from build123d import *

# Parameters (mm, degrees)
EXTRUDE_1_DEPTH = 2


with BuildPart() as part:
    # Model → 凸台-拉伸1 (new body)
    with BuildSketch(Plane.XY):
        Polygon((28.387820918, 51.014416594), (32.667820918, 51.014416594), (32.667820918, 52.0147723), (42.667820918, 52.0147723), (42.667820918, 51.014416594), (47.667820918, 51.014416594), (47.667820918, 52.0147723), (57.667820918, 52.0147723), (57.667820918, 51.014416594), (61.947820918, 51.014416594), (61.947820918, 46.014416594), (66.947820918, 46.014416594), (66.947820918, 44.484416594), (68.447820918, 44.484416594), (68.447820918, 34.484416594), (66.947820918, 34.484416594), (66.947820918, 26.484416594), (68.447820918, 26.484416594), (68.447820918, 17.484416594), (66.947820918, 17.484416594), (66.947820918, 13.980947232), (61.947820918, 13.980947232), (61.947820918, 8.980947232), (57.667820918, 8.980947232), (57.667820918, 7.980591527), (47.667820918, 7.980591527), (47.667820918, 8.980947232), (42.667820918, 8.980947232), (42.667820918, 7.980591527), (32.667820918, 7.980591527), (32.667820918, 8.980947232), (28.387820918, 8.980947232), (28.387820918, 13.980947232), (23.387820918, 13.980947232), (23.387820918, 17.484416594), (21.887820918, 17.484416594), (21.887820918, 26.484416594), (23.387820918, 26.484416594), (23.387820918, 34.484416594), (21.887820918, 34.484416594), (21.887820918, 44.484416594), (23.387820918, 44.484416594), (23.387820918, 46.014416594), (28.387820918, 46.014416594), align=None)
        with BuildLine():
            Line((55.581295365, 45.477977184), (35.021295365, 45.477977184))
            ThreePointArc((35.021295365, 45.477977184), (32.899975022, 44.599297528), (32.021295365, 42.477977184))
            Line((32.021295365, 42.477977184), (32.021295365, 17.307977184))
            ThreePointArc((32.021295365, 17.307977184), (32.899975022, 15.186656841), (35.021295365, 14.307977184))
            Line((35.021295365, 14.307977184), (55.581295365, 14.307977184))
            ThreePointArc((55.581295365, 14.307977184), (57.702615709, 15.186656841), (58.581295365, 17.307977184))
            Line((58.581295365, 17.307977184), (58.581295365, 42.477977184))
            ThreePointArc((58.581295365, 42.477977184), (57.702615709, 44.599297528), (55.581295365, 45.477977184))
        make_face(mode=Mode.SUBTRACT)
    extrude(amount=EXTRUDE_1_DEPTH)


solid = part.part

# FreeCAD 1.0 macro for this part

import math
import FreeCAD as App
import Part
import Sketcher
from FreeCAD import Vector

doc = App.newDocument("Part")
body = doc.addObject("PartDesign::Body", "Body")

# Sketch on XY plane
sketch1 = body.newObject("Sketcher::SketchObject", "Sketch")
sketch1.AttachmentSupport = (doc.getObject("XY_Plane"), [""])
sketch1.MapMode = "FlatFace"
sketch1.addGeometry(Part.LineSegment(Vector(32.7, 51, 0), Vector(28.4, 51, 0)), False)
sketch1.addGeometry(Part.LineSegment(Vector(28.4, 51, 0), Vector(28.4, 46, 0)), False)
sketch1.addGeometry(Part.LineSegment(Vector(28.4, 46, 0), Vector(23.4, 46, 0)), False)
sketch1.addGeometry(Part.LineSegment(Vector(23.4, 46, 0), Vector(23.4, 44.5, 0)), False)
sketch1.addGeometry(Part.LineSegment(Vector(23.4, 44.5, 0), Vector(21.9, 44.5, 0)), False)
sketch1.addGeometry(Part.LineSegment(Vector(21.9, 44.5, 0), Vector(21.9, 34.5, 0)), False)
sketch1.addGeometry(Part.LineSegment(Vector(21.9, 34.5, 0), Vector(23.4, 34.5, 0)), False)
sketch1.addGeometry(Part.LineSegment(Vector(23.4, 34.5, 0), Vector(23.4, 26.5, 0)), False)
sketch1.addGeometry(Part.LineSegment(Vector(23.4, 26.5, 0), Vector(21.9, 26.5, 0)), False)
sketch1.addGeometry(Part.LineSegment(Vector(21.9, 26.5, 0), Vector(21.9, 17.5, 0)), False)
sketch1.addGeometry(Part.LineSegment(Vector(21.9, 17.5, 0), Vector(23.4, 17.5, 0)), False)
sketch1.addGeometry(Part.LineSegment(Vector(23.4, 17.5, 0), Vector(23.4, 14, 0)), False)
sketch1.addGeometry(Part.LineSegment(Vector(23.4, 14, 0), Vector(28.4, 14, 0)), False)
sketch1.addGeometry(Part.LineSegment(Vector(28.4, 14, 0), Vector(28.4, 9, 0)), False)
sketch1.addGeometry(Part.LineSegment(Vector(28.4, 9, 0), Vector(32.7, 9, 0)), False)
sketch1.addGeometry(Part.LineSegment(Vector(32.7, 9, 0), Vector(32.7, 8, 0)), False)
sketch1.addGeometry(Part.LineSegment(Vector(32.7, 8, 0), Vector(42.7, 8, 0)), False)
sketch1.addGeometry(Part.LineSegment(Vector(42.7, 8, 0), Vector(42.7, 9, 0)), False)
sketch1.addGeometry(Part.LineSegment(Vector(42.7, 9, 0), Vector(47.7, 9, 0)), False)
sketch1.addGeometry(Part.LineSegment(Vector(47.7, 9, 0), Vector(47.7, 8, 0)), False)
sketch1.addGeometry(Part.LineSegment(Vector(47.7, 8, 0), Vector(57.7, 8, 0)), False)
sketch1.addGeometry(Part.LineSegment(Vector(57.7, 8, 0), Vector(57.7, 9, 0)), False)
sketch1.addGeometry(Part.LineSegment(Vector(57.7, 9, 0), Vector(61.9, 9, 0)), False)
sketch1.addGeometry(Part.LineSegment(Vector(61.9, 9, 0), Vector(61.9, 14, 0)), False)
sketch1.addGeometry(Part.LineSegment(Vector(61.9, 14, 0), Vector(66.9, 14, 0)), False)
sketch1.addGeometry(Part.LineSegment(Vector(66.9, 14, 0), Vector(66.9, 17.5, 0)), False)
sketch1.addGeometry(Part.LineSegment(Vector(66.9, 17.5, 0), Vector(68.4, 17.5, 0)), False)
sketch1.addGeometry(Part.LineSegment(Vector(68.4, 17.5, 0), Vector(68.4, 26.5, 0)), False)
sketch1.addGeometry(Part.LineSegment(Vector(68.4, 26.5, 0), Vector(66.9, 26.5, 0)), False)
sketch1.addGeometry(Part.LineSegment(Vector(66.9, 26.5, 0), Vector(66.9, 34.5, 0)), False)
sketch1.addGeometry(Part.LineSegment(Vector(66.9, 34.5, 0), Vector(68.4, 34.5, 0)), False)
sketch1.addGeometry(Part.LineSegment(Vector(68.4, 34.5, 0), Vector(68.4, 44.5, 0)), False)
sketch1.addGeometry(Part.LineSegment(Vector(68.4, 44.5, 0), Vector(66.9, 44.5, 0)), False)
sketch1.addGeometry(Part.LineSegment(Vector(66.9, 44.5, 0), Vector(66.9, 46, 0)), False)
sketch1.addGeometry(Part.LineSegment(Vector(66.9, 46, 0), Vector(61.9, 46, 0)), False)
sketch1.addGeometry(Part.LineSegment(Vector(61.9, 46, 0), Vector(61.9, 51, 0)), False)
sketch1.addGeometry(Part.LineSegment(Vector(61.9, 51, 0), Vector(57.7, 51, 0)), False)
sketch1.addGeometry(Part.LineSegment(Vector(57.7, 51, 0), Vector(57.7, 52, 0)), False)
sketch1.addGeometry(Part.LineSegment(Vector(57.7, 52, 0), Vector(47.7, 52, 0)), False)
sketch1.addGeometry(Part.LineSegment(Vector(47.7, 52, 0), Vector(47.7, 51, 0)), False)
sketch1.addGeometry(Part.LineSegment(Vector(47.7, 51, 0), Vector(42.7, 51, 0)), False)
sketch1.addGeometry(Part.LineSegment(Vector(42.7, 51, 0), Vector(42.7, 52, 0)), False)
sketch1.addGeometry(Part.LineSegment(Vector(42.7, 52, 0), Vector(32.7, 52, 0)), False)
sketch1.addGeometry(Part.LineSegment(Vector(32.7, 52, 0), Vector(32.7, 51, 0)), False)
sketch1.addGeometry(Part.ArcOfCircle(Part.Circle(Vector(55.6, 42.5, 0), Vector(0, 0, 1), 3), math.radians(0), math.radians(90)), False)
sketch1.addGeometry(Part.LineSegment(Vector(58.6, 42.5, 0), Vector(58.6, 17.3, 0)), False)
sketch1.addGeometry(Part.ArcOfCircle(Part.Circle(Vector(55.6, 17.3, 0), Vector(0, 0, 1), 3), math.radians(-90), math.radians(0)), False)
sketch1.addGeometry(Part.LineSegment(Vector(55.6, 14.3, 0), Vector(35, 14.3, 0)), False)
sketch1.addGeometry(Part.ArcOfCircle(Part.Circle(Vector(35, 17.3, 0), Vector(0, 0, 1), 3), math.radians(-180), math.radians(-90)), False)
sketch1.addGeometry(Part.LineSegment(Vector(32, 17.3, 0), Vector(32, 42.5, 0)), False)
sketch1.addGeometry(Part.ArcOfCircle(Part.Circle(Vector(35, 42.5, 0), Vector(0, 0, 1), 3), math.radians(90), math.radians(180)), False)
sketch1.addGeometry(Part.LineSegment(Vector(35, 45.5, 0), Vector(55.6, 45.5, 0)), False)
sketch1.addConstraint(Sketcher.Constraint("Coincident", 0, 2, 1, 1))
sketch1.addConstraint(Sketcher.Constraint("Coincident", 1, 2, 2, 1))
sketch1.addConstraint(Sketcher.Constraint("Coincident", 2, 2, 3, 1))
sketch1.addConstraint(Sketcher.Constraint("Coincident", 3, 2, 4, 1))
sketch1.addConstraint(Sketcher.Constraint("Coincident", 4, 2, 5, 1))
sketch1.addConstraint(Sketcher.Constraint("Coincident", 5, 2, 6, 1))
sketch1.addConstraint(Sketcher.Constraint("Coincident", 6, 2, 7, 1))
sketch1.addConstraint(Sketcher.Constraint("Coincident", 7, 2, 8, 1))
sketch1.addConstraint(Sketcher.Constraint("Coincident", 8, 2, 9, 1))
sketch1.addConstraint(Sketcher.Constraint("Coincident", 9, 2, 10, 1))
sketch1.addConstraint(Sketcher.Constraint("Coincident", 10, 2, 11, 1))
sketch1.addConstraint(Sketcher.Constraint("Coincident", 11, 2, 12, 1))
sketch1.addConstraint(Sketcher.Constraint("Coincident", 12, 2, 13, 1))
sketch1.addConstraint(Sketcher.Constraint("Coincident", 13, 2, 14, 1))
sketch1.addConstraint(Sketcher.Constraint("Coincident", 14, 2, 15, 1))
sketch1.addConstraint(Sketcher.Constraint("Coincident", 15, 2, 16, 1))
sketch1.addConstraint(Sketcher.Constraint("Coincident", 16, 2, 17, 1))
sketch1.addConstraint(Sketcher.Constraint("Coincident", 17, 2, 18, 1))
sketch1.addConstraint(Sketcher.Constraint("Coincident", 18, 2, 19, 1))
sketch1.addConstraint(Sketcher.Constraint("Coincident", 19, 2, 20, 1))
sketch1.addConstraint(Sketcher.Constraint("Coincident", 20, 2, 21, 1))
sketch1.addConstraint(Sketcher.Constraint("Coincident", 21, 2, 22, 1))
sketch1.addConstraint(Sketcher.Constraint("Coincident", 22, 2, 23, 1))
sketch1.addConstraint(Sketcher.Constraint("Coincident", 23, 2, 24, 1))
sketch1.addConstraint(Sketcher.Constraint("Coincident", 24, 2, 25, 1))
sketch1.addConstraint(Sketcher.Constraint("Coincident", 25, 2, 26, 1))
sketch1.addConstraint(Sketcher.Constraint("Coincident", 26, 2, 27, 1))
sketch1.addConstraint(Sketcher.Constraint("Coincident", 27, 2, 28, 1))
sketch1.addConstraint(Sketcher.Constraint("Coincident", 28, 2, 29, 1))
sketch1.addConstraint(Sketcher.Constraint("Coincident", 29, 2, 30, 1))
sketch1.addConstraint(Sketcher.Constraint("Coincident", 30, 2, 31, 1))
sketch1.addConstraint(Sketcher.Constraint("Coincident", 31, 2, 32, 1))
sketch1.addConstraint(Sketcher.Constraint("Coincident", 32, 2, 33, 1))
sketch1.addConstraint(Sketcher.Constraint("Coincident", 33, 2, 34, 1))
sketch1.addConstraint(Sketcher.Constraint("Coincident", 34, 2, 35, 1))
sketch1.addConstraint(Sketcher.Constraint("Coincident", 35, 2, 36, 1))
sketch1.addConstraint(Sketcher.Constraint("Coincident", 36, 2, 37, 1))
sketch1.addConstraint(Sketcher.Constraint("Coincident", 37, 2, 38, 1))
sketch1.addConstraint(Sketcher.Constraint("Coincident", 38, 2, 39, 1))
sketch1.addConstraint(Sketcher.Constraint("Coincident", 39, 2, 40, 1))
sketch1.addConstraint(Sketcher.Constraint("Coincident", 40, 2, 41, 1))
sketch1.addConstraint(Sketcher.Constraint("Coincident", 41, 2, 42, 1))
sketch1.addConstraint(Sketcher.Constraint("Coincident", 42, 2, 43, 1))
sketch1.addConstraint(Sketcher.Constraint("Coincident", 43, 2, 0, 1))
sketch1.addConstraint(Sketcher.Constraint("Tangent", 44, 1, 45, 1))
sketch1.addConstraint(Sketcher.Constraint("Tangent", 45, 2, 46, 2))
sketch1.addConstraint(Sketcher.Constraint("Tangent", 46, 1, 47, 1))
sketch1.addConstraint(Sketcher.Constraint("Tangent", 47, 2, 48, 2))
sketch1.addConstraint(Sketcher.Constraint("Tangent", 48, 1, 49, 1))
sketch1.addConstraint(Sketcher.Constraint("Tangent", 49, 2, 50, 2))
sketch1.addConstraint(Sketcher.Constraint("Tangent", 50, 1, 51, 1))
sketch1.addConstraint(Sketcher.Constraint("Tangent", 51, 2, 44, 2))
sketch1.addConstraint(Sketcher.Constraint("Horizontal", 0))
sketch1.addConstraint(Sketcher.Constraint("Vertical", 1))
sketch1.addConstraint(Sketcher.Constraint("Horizontal", 2))
sketch1.addConstraint(Sketcher.Constraint("Vertical", 3))
sketch1.addConstraint(Sketcher.Constraint("Horizontal", 4))
sketch1.addConstraint(Sketcher.Constraint("Vertical", 5))
sketch1.addConstraint(Sketcher.Constraint("Horizontal", 6))
sketch1.addConstraint(Sketcher.Constraint("Vertical", 7))
sketch1.addConstraint(Sketcher.Constraint("Horizontal", 8))
sketch1.addConstraint(Sketcher.Constraint("Vertical", 9))
sketch1.addConstraint(Sketcher.Constraint("Horizontal", 10))
sketch1.addConstraint(Sketcher.Constraint("Vertical", 11))
sketch1.addConstraint(Sketcher.Constraint("Horizontal", 12))
sketch1.addConstraint(Sketcher.Constraint("Vertical", 13))
sketch1.addConstraint(Sketcher.Constraint("Horizontal", 14))
sketch1.addConstraint(Sketcher.Constraint("Vertical", 15))
sketch1.addConstraint(Sketcher.Constraint("Horizontal", 16))
sketch1.addConstraint(Sketcher.Constraint("Vertical", 17))
sketch1.addConstraint(Sketcher.Constraint("Horizontal", 18))
sketch1.addConstraint(Sketcher.Constraint("Vertical", 19))
sketch1.addConstraint(Sketcher.Constraint("Horizontal", 20))
sketch1.addConstraint(Sketcher.Constraint("Vertical", 21))
sketch1.addConstraint(Sketcher.Constraint("Horizontal", 22))
sketch1.addConstraint(Sketcher.Constraint("Vertical", 23))
sketch1.addConstraint(Sketcher.Constraint("Horizontal", 24))
sketch1.addConstraint(Sketcher.Constraint("Vertical", 25))
sketch1.addConstraint(Sketcher.Constraint("Horizontal", 26))
sketch1.addConstraint(Sketcher.Constraint("Vertical", 27))
sketch1.addConstraint(Sketcher.Constraint("Horizontal", 28))
sketch1.addConstraint(Sketcher.Constraint("Vertical", 29))
sketch1.addConstraint(Sketcher.Constraint("Horizontal", 30))
sketch1.addConstraint(Sketcher.Constraint("Vertical", 31))
sketch1.addConstraint(Sketcher.Constraint("Horizontal", 32))
sketch1.addConstraint(Sketcher.Constraint("Vertical", 33))
sketch1.addConstraint(Sketcher.Constraint("Horizontal", 34))
sketch1.addConstraint(Sketcher.Constraint("Vertical", 35))
sketch1.addConstraint(Sketcher.Constraint("Horizontal", 36))
sketch1.addConstraint(Sketcher.Constraint("Vertical", 37))
sketch1.addConstraint(Sketcher.Constraint("Horizontal", 38))
sketch1.addConstraint(Sketcher.Constraint("Vertical", 39))
sketch1.addConstraint(Sketcher.Constraint("Horizontal", 40))
sketch1.addConstraint(Sketcher.Constraint("Vertical", 41))
sketch1.addConstraint(Sketcher.Constraint("Horizontal", 42))
sketch1.addConstraint(Sketcher.Constraint("Vertical", 43))
sketch1.addConstraint(Sketcher.Constraint("Vertical", 45))
sketch1.addConstraint(Sketcher.Constraint("Horizontal", 47))
sketch1.addConstraint(Sketcher.Constraint("Vertical", 49))
sketch1.addConstraint(Sketcher.Constraint("Horizontal", 51))
sketch1.addConstraint(Sketcher.Constraint("Equal", 44, 46))
sketch1.addConstraint(Sketcher.Constraint("Equal", 46, 48))
sketch1.addConstraint(Sketcher.Constraint("Equal", 48, 50))
sketch1.addConstraint(Sketcher.Constraint("Horizontal", 14, 2, 17, 2))
sketch1.addConstraint(Sketcher.Constraint("Horizontal", 16, 2, 19, 2))
sketch1.addConstraint(Sketcher.Constraint("Horizontal", 18, 2, 21, 2))
sketch1.addConstraint(Sketcher.Constraint("Horizontal", 12, 2, 23, 2))
sketch1.addConstraint(Sketcher.Constraint("Horizontal", 10, 2, 25, 2))
sketch1.addConstraint(Sketcher.Constraint("Horizontal", 8, 2, 27, 2))
sketch1.addConstraint(Sketcher.Constraint("Horizontal", 6, 2, 29, 2))
sketch1.addConstraint(Sketcher.Constraint("Horizontal", 4, 2, 31, 2))
sketch1.addConstraint(Sketcher.Constraint("Horizontal", 2, 2, 33, 2))
sketch1.addConstraint(Sketcher.Constraint("Horizontal", 0, 2, 35, 2))
sketch1.addConstraint(Sketcher.Constraint("Horizontal", 36, 2, 39, 2))
sketch1.addConstraint(Sketcher.Constraint("Horizontal", 38, 2, 41, 2))
sketch1.addConstraint(Sketcher.Constraint("Vertical", 3, 2, 6, 2))
sketch1.addConstraint(Sketcher.Constraint("Vertical", 5, 2, 8, 2))
sketch1.addConstraint(Sketcher.Constraint("Vertical", 7, 2, 10, 2))
sketch1.addConstraint(Sketcher.Constraint("Vertical", 1, 2, 12, 2))
sketch1.addConstraint(Sketcher.Constraint("Vertical", 25, 2, 28, 2))
sketch1.addConstraint(Sketcher.Constraint("Vertical", 27, 2, 30, 2))
sketch1.addConstraint(Sketcher.Constraint("Vertical", 29, 2, 32, 2))
sketch1.addConstraint(Sketcher.Constraint("Vertical", 23, 2, 34, 2))
sketch1.addConstraint(Sketcher.Constraint("Vertical", 21, 2, 36, 2))
sketch1.addConstraint(Sketcher.Constraint("Vertical", 19, 2, 38, 2))
sketch1.addConstraint(Sketcher.Constraint("Vertical", 17, 2, 40, 2))
sketch1.addConstraint(Sketcher.Constraint("Vertical", 15, 2, 42, 2))
sketch1.addConstraint(Sketcher.Constraint("Equal", 12, 18))
sketch1.addConstraint(Sketcher.Constraint("Equal", 16, 20))
sketch1.addConstraint(Sketcher.Constraint("Equal", 14, 22))
sketch1.addConstraint(Sketcher.Constraint("Equal", 18, 24))
sketch1.addConstraint(Sketcher.Constraint("Equal", 10, 26))
sketch1.addConstraint(Sketcher.Constraint("Equal", 40, 1))
sketch1.addConstraint(Sketcher.Constraint("Equal", 42, 5))
sketch1.addConstraint(Sketcher.Constraint("Equal", 1, 13))
sketch1.addConstraint(Sketcher.Constraint("Equal", 21, 37))
sketch1.addConstraint(Sketcher.Constraint("Radius", 44, 3.0))
sketch1.addConstraint(Sketcher.Constraint("DistanceX", 2, 2, 2, 1, 5.0))
sketch1.addConstraint(Sketcher.Constraint("DistanceX", 16, 1, 16, 2, 10.0))
sketch1.addConstraint(Sketcher.Constraint("DistanceY", 7, 2, 7, 1, 8.0))
sketch1.addConstraint(Sketcher.Constraint("DistanceY", 9, 2, 9, 1, 9.0))
sketch1.addConstraint(Sketcher.Constraint("DistanceX", 4, 2, 4, 1, 1.5))
sketch1.addConstraint(Sketcher.Constraint("DistanceX", 0, 2, 0, 1, 4.28))
sketch1.addConstraint(Sketcher.Constraint("DistanceX", 47, 2, 47, 1, 20.56))
sketch1.addConstraint(Sketcher.Constraint("DistanceY", 3, 2, 3, 1, 1.53))
sketch1.addConstraint(Sketcher.Constraint("DistanceY", 45, 2, 45, 1, 25.17))
sketch1.addConstraint(Sketcher.Constraint("DistanceY", 11, 2, 11, 1, 3.503469))
sketch1.addConstraint(Sketcher.Constraint("DistanceY", 15, 2, 15, 1, 1.000356))
sketch1.addConstraint(Sketcher.Constraint("DistanceX", -1, 1, 0, 2, 28.387821))
sketch1.addConstraint(Sketcher.Constraint("DistanceY", -1, 1, 15, 2, 7.980592))
sketch1.addConstraint(Sketcher.Constraint("DistanceY", 50, 3, 0, 2, 8.536439))
sketch1.addConstraint(Sketcher.Constraint("DistanceX", -1, 1, 44, 3, 55.581295))
pad1 = body.newObject("PartDesign::Pad", "Pad")
pad1.Profile = sketch1
pad1.Length = 2

doc.recompute()
